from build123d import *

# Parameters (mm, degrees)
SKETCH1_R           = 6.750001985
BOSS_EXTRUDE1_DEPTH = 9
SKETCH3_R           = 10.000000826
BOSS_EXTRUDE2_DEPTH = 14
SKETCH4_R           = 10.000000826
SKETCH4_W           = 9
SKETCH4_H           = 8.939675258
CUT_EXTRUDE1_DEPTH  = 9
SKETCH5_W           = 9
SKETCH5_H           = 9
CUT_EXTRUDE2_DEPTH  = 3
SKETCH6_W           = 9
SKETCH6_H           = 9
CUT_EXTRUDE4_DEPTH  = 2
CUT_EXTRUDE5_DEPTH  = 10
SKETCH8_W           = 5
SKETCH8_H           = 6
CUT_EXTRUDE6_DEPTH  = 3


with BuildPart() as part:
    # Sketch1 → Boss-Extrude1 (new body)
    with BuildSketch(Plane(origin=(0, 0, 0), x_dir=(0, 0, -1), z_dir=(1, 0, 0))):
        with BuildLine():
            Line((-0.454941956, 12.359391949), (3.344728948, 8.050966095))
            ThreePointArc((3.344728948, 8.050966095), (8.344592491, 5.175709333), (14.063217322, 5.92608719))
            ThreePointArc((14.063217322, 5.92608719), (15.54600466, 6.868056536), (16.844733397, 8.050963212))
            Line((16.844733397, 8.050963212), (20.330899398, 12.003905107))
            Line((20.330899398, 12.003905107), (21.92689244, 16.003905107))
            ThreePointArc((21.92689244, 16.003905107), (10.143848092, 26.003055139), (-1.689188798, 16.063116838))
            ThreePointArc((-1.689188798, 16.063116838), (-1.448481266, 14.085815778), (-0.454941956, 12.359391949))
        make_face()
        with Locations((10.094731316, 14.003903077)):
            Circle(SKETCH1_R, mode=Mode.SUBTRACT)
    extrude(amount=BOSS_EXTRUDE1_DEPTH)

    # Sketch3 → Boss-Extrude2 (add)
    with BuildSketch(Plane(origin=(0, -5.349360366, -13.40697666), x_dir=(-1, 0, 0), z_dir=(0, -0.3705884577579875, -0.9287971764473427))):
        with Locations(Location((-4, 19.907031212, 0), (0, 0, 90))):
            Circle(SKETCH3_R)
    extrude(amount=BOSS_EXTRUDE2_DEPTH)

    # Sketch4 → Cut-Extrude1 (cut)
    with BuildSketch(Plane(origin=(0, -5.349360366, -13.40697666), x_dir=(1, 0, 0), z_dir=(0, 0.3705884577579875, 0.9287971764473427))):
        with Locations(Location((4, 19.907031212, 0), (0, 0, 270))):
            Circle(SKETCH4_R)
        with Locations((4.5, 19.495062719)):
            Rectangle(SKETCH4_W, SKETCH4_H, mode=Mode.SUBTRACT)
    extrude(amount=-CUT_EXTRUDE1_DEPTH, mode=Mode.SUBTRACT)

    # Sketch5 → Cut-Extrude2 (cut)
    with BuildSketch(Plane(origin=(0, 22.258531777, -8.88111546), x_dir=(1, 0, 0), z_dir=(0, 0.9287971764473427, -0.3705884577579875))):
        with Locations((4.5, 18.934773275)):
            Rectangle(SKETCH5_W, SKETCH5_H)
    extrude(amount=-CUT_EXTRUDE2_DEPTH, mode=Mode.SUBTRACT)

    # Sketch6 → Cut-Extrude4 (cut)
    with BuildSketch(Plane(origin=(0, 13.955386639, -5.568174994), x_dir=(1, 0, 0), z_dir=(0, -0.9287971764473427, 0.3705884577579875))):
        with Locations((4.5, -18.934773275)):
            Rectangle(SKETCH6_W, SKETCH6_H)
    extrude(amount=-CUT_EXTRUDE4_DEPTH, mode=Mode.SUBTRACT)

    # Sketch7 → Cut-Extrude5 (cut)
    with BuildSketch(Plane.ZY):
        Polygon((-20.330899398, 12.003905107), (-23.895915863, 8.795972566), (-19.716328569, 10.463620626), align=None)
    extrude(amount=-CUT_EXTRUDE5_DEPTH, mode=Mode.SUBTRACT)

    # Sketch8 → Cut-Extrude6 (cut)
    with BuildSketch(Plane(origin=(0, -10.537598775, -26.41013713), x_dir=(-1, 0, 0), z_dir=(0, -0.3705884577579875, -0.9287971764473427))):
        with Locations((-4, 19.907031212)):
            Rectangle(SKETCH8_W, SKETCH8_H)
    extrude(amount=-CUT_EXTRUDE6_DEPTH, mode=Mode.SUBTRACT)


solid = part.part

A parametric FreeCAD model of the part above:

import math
import FreeCAD as App
import Part
import Sketcher

V = App.Vector
Q = App.Units.Quantity

doc = App.newDocument("Part")
body = doc.addObject("PartDesign::Body", "Body")

sketch1 = doc.addObject("Sketcher::SketchObject", "Sketch")
body.addObject(sketch1)
sketch1.AttachmentSupport = (doc.YZ_Plane, [""])
sketch1.MapMode = "FlatFace"
sketch1.addGeometry([
    Part.LineSegment(V(12.4, 0.5, 0), V(8.1, -3.3, 0)),
    Part.ArcOfCircle(Part.Circle(V(14, -10.1, 0), V(0, 0, 1), 9), math.radians(131), math.radians(206)),
    Part.ArcOfCircle(Part.Circle(V(15, -9.4, 0), V(0, 0, 1), 10.2), math.radians(-152.52), math.radians(-132.72)),
    Part.LineSegment(V(8.1, -16.8, 0), V(12, -20.3, 0)),
    Part.LineSegment(V(12, -20.3, 0), V(16, -21.9, 0)),
    Part.ArcOfCircle(Part.Circle(V(14, -10.1, 0), V(0, 0, 1), 12), math.radians(-80), math.radians(80)),
    Part.ArcOfCircle(Part.Circle(V(15.7, -3.3, 0), V(0, 0, 1), 5), math.radians(85), math.radians(131)),
    Part.Circle(V(14, -10.1, 0), V(0, 0, 1), 6.8),
], False)
sketch1.addConstraint([
    Sketcher.Constraint("Tangent", 0, 2, 1, 1),
    Sketcher.Constraint("Coincident", 1, 2, 2, 1),
    Sketcher.Constraint("Coincident", 2, 2, 3, 1),
    Sketcher.Constraint("Coincident", 3, 2, 4, 1),
    Sketcher.Constraint("Coincident", 4, 2, 5, 1),
    Sketcher.Constraint("Coincident", 5, 2, 6, 1),
    Sketcher.Constraint("Tangent", 6, 2, 0, 1),
    Sketcher.Constraint("Coincident", 7, 3, 1, 3),
    Sketcher.Constraint("Radius", 1, Q("8.999999 mm")),
    Sketcher.Constraint("DistanceX", 3, 2, 4, 2, Q("4 mm")),
    Sketcher.Constraint("Radius", 5, Q("11.977598 mm")),
    Sketcher.Constraint("Radius", 6, Q("4.999991 mm")),
    Sketcher.Constraint("Diameter", 7, Q("13.500004 mm")),
    Sketcher.Constraint("Radius", 2, Q("10.178087 mm")),
    Sketcher.Constraint("DistanceY", 2, 3, -1, 1, Q("9.367299 mm")),
    Sketcher.Constraint("DistanceY", 3, 2, -1, 1, Q("20.330899 mm")),
    Sketcher.Constraint("DistanceY", 1, 2, 5, 3, Q("3.9494 mm")),
    Sketcher.Constraint("Distance", 3, Q("5.270588 mm")),
    Sketcher.Constraint("DistanceY", 1, 3, -1, 1, Q("10.094731 mm")),
    Sketcher.Constraint("DistanceY", 0, 2, -1, 1, Q("3.344729 mm")),
    Sketcher.Constraint("DistanceY", -1, 1, 5, 2, Q("1.689189 mm")),
    Sketcher.Constraint("DistanceX", -1, 1, 6, 2, Q("12.359392 mm")),
    Sketcher.Constraint("DistanceY", -1, 1, 6, 2, Q("0.454942 mm")),
    Sketcher.Constraint("DistanceX", 1, 3, 5, 3, Q("0.021592 mm")),
    Sketcher.Constraint("DistanceX", 2, 2, 1, 3, Q("5.95294 mm")),
])
pad1 = doc.addObject("PartDesign::Pad", "Pad")
body.addObject(pad1)
pad1.Profile = sketch1
pad1.Length = 9

sketch2 = doc.addObject("Sketcher::SketchObject", "Sketch001")
body.addObject(sketch2)
sketch2.Placement = App.Placement(V(0, -5.34936, -13.406977), App.Rotation(V(-1, 0, 0), V(0, 0.928797176, -0.370588458), V(0, -0.370588458, -0.928797176), "ZXY"))
sketch2.addGeometry(Part.Circle(V(-4, 20, 0), V(0, 0, 1), 10), False)
sketch2.addConstraint([
    Sketcher.Constraint("Diameter", 0, Q("20.000002 mm")),
    Sketcher.Constraint("DistanceX", 0, 3, -1, 1, Q("4 mm")),
    Sketcher.Constraint("DistanceY", -1, 1, 0, 3, Q("19.907031 mm")),
])
pad2 = doc.addObject("PartDesign::Pad", "Pad001")
body.addObject(pad2)
pad2.Profile = sketch2
pad2.Length = 14

sketch3 = doc.addObject("Sketcher::SketchObject", "Sketch002")
body.addObject(sketch3)
sketch3.Placement = App.Placement(V(0, -5.34936, -13.406977), App.Rotation(V(1, 0, 0), V(0, 0.928797176, -0.370588458), V(0, 0.370588458, 0.928797176), "ZXY"))
sketch3.addGeometry([
    Part.Circle(V(4, 20, 0), V(0, 0, 1), 10),
    Part.LineSegment(V(9, 15, 0), V(0, 15, 0)),
    Part.LineSegment(V(0, 15, 0), V(0, 24, 0)),
    Part.LineSegment(V(0, 24, 0), V(9, 24, 0)),
    Part.LineSegment(V(9, 24, 0), V(9, 15, 0)),
], False)
sketch3.addConstraint([
    Sketcher.Constraint("Coincident", 1, 2, 2, 1),
    Sketcher.Constraint("Coincident", 2, 2, 3, 1),
    Sketcher.Constraint("Coincident", 3, 2, 4, 1),
    Sketcher.Constraint("Coincident", 4, 2, 1, 1),
    Sketcher.Constraint("Horizontal", 1),
    Sketcher.Constraint("Vertical", 2),
    Sketcher.Constraint("Horizontal", 3),
    Sketcher.Constraint("Vertical", 4),
    Sketcher.Constraint("PointOnObject", 1, 2, -2),
    Sketcher.Constraint("Diameter", 0, Q("20.000002 mm")),
    Sketcher.Constraint("DistanceX", 1, 2, 1, 1, Q("9 mm")),
    Sketcher.Constraint("DistanceX", -1, 1, 0, 3, Q("4 mm")),
    Sketcher.Constraint("DistanceY", -1, 1, 2, 2, Q("23.9649 mm")),
    Sketcher.Constraint("DistanceY", 2, 1, 2, 2, Q("8.939675 mm")),
    Sketcher.Constraint("DistanceY", -1, 1, 0, 3, Q("19.907031 mm")),
])
pocket1 = doc.addObject("PartDesign::Pocket", "Pocket")
body.addObject(pocket1)
pocket1.Profile = sketch3
pocket1.Length = 9

sketch4 = doc.addObject("Sketcher::SketchObject", "Sketch003")
body.addObject(sketch4)
sketch4.Placement = App.Placement(V(0, 22.258532, -8.881115), App.Rotation(V(1, 0, 0), V(0, -0.370588458, -0.928797176), V(0, 0.928797176, -0.370588458), "ZXY"))
sketch4.addGeometry([
    Part.LineSegment(V(0, 23, 0), V(0, 14, 0)),
    Part.LineSegment(V(0, 14, 0), V(9, 14, 0)),
    Part.LineSegment(V(9, 14, 0), V(9, 23, 0)),
    Part.LineSegment(V(9, 23, 0), V(0, 23, 0)),
], False)
sketch4.addConstraint([
    Sketcher.Constraint("Coincident", 0, 2, 1, 1),
    Sketcher.Constraint("Coincident", 1, 2, 2, 1),
    Sketcher.Constraint("Coincident", 2, 2, 3, 1),
    Sketcher.Constraint("Coincident", 3, 2, 0, 1),
    Sketcher.Constraint("Vertical", 0),
    Sketcher.Constraint("Horizontal", 1),
    Sketcher.Constraint("Vertical", 2),
    Sketcher.Constraint("Horizontal", 3),
    Sketcher.Constraint("PointOnObject", 0, 2, -2),
    Sketcher.Constraint("Equal", 3, 0),
    Sketcher.Constraint("DistanceX", 1, 1, 1, 2, Q("9 mm")),
    Sketcher.Constraint("DistanceY", -1, 1, 0, 2, Q("14.434773 mm")),
])
pocket2 = doc.addObject("PartDesign::Pocket", "Pocket001")
body.addObject(pocket2)
pocket2.Profile = sketch4
pocket2.Length = 3

sketch5 = doc.addObject("Sketcher::SketchObject", "Sketch004")
body.addObject(sketch5)
sketch5.Placement = App.Placement(V(0, 13.955387, -5.568175), App.Rotation(V(1, 0, 0), V(0, 0.370588458, 0.928797176), V(0, -0.928797176, 0.370588458), "ZXY"))
sketch5.addGeometry([
    Part.LineSegment(V(0, -14, 0), V(0, -23, 0)),
    Part.LineSegment(V(0, -23, 0), V(9, -23, 0)),
    Part.LineSegment(V(9, -23, 0), V(9, -14, 0)),
    Part.LineSegment(V(9, -14, 0), V(0, -14, 0)),
], False)
sketch5.addConstraint([
    Sketcher.Constraint("Coincident", 0, 2, 1, 1),
    Sketcher.Constraint("Coincident", 1, 2, 2, 1),
    Sketcher.Constraint("Coincident", 2, 2, 3, 1),
    Sketcher.Constraint("Coincident", 3, 2, 0, 1),
    Sketcher.Constraint("Vertical", 0),
    Sketcher.Constraint("Horizontal", 1),
    Sketcher.Constraint("Vertical", 2),
    Sketcher.Constraint("Horizontal", 3),
    Sketcher.Constraint("PointOnObject", 0, 2, -2),
    Sketcher.Constraint("Equal", 3, 0),
    Sketcher.Constraint("DistanceX", 1, 1, 1, 2, Q("9 mm")),
    Sketcher.Constraint("DistanceY", 0, 2, -1, 1, Q("23.434773 mm")),
])
pocket3 = doc.addObject("PartDesign::Pocket", "Pocket002")
body.addObject(pocket3)
pocket3.Profile = sketch5
pocket3.Length = 2

sketch6 = doc.addObject("Sketcher::SketchObject", "Sketch005")
body.addObject(sketch6)
sketch6.AttachmentSupport = (doc.YZ_Plane, [""])
sketch6.MapMode = "FlatFace"
sketch6.addGeometry([
    Part.LineSegment(V(12, -20.3, 0), V(8.8, -23.9, 0)),
    Part.LineSegment(V(8.8, -23.9, 0), V(10.5, -19.7, 0)),
    Part.LineSegment(V(10.5, -19.7, 0), V(12, -20.3, 0)),
], False)
sketch6.addConstraint([
    Sketcher.Constraint("Coincident", 0, 2, 1, 1),
    Sketcher.Constraint("Coincident", 1, 2, 2, 1),
    Sketcher.Constraint("Coincident", 2, 2, 0, 1),
    Sketcher.Constraint("Perpendicular", 1, 2),
    Sketcher.Constraint("Distance", 1, Q("4.5 mm")),
    Sketcher.Constraint("DistanceY", 2, 2, -1, 1, Q("20.330899 mm")),
    Sketcher.Constraint("Distance", 0, Q("4.79585 mm")),
    Sketcher.Constraint("DistanceX", -1, 1, 1, 2, Q("10.463621 mm")),
    Sketcher.Constraint("DistanceY", 1, 2, -1, 1, Q("19.716329 mm")),
])
pocket4 = doc.addObject("PartDesign::Pocket", "Pocket003")
body.addObject(pocket4)
pocket4.Profile = sketch6
pocket4.Length = 10
pocket4.Reversed = True

sketch7 = doc.addObject("Sketcher::SketchObject", "Sketch006")
body.addObject(sketch7)
sketch7.Placement = App.Placement(V(0, -10.537599, -26.410137), App.Rotation(V(-1, 0, 0), V(0, 0.928797176, -0.370588458), V(0, -0.370588458, -0.928797176), "ZXY"))
sketch7.addGeometry([
    Part.LineSegment(V(-6, 23, 0), V(-6, 17, 0)),
    Part.LineSegment(V(-6, 17, 0), V(-2, 17, 0)),
    Part.LineSegment(V(-2, 17, 0), V(-2, 23, 0)),
    Part.LineSegment(V(-2, 23, 0), V(-6, 23, 0)),
], False)
sketch7.addConstraint([
    Sketcher.Constraint("Coincident", 0, 2, 1, 1),
    Sketcher.Constraint("Coincident", 1, 2, 2, 1),
    Sketcher.Constraint("Coincident", 2, 2, 3, 1),
    Sketcher.Constraint("Coincident", 3, 2, 0, 1),
    Sketcher.Constraint("Vertical", 0),
    Sketcher.Constraint("Horizontal", 1),
    Sketcher.Constraint("Vertical", 2),
    Sketcher.Constraint("Horizontal", 3),
    Sketcher.Constraint("DistanceX", 1, 1, 1, 2, Q("5 mm")),
    Sketcher.Constraint("DistanceY", 0, 2, 0, 1, Q("6 mm")),
    Sketcher.Constraint("DistanceX", 0, 2, -1, 1, Q("6.5 mm")),
    Sketcher.Constraint("DistanceY", -1, 1, 0, 2, Q("16.907031 mm")),
])
pocket5 = doc.addObject("PartDesign::Pocket", "Pocket004")
body.addObject(pocket5)
pocket5.Profile = sketch7
pocket5.Length = 3

doc.recompute()
